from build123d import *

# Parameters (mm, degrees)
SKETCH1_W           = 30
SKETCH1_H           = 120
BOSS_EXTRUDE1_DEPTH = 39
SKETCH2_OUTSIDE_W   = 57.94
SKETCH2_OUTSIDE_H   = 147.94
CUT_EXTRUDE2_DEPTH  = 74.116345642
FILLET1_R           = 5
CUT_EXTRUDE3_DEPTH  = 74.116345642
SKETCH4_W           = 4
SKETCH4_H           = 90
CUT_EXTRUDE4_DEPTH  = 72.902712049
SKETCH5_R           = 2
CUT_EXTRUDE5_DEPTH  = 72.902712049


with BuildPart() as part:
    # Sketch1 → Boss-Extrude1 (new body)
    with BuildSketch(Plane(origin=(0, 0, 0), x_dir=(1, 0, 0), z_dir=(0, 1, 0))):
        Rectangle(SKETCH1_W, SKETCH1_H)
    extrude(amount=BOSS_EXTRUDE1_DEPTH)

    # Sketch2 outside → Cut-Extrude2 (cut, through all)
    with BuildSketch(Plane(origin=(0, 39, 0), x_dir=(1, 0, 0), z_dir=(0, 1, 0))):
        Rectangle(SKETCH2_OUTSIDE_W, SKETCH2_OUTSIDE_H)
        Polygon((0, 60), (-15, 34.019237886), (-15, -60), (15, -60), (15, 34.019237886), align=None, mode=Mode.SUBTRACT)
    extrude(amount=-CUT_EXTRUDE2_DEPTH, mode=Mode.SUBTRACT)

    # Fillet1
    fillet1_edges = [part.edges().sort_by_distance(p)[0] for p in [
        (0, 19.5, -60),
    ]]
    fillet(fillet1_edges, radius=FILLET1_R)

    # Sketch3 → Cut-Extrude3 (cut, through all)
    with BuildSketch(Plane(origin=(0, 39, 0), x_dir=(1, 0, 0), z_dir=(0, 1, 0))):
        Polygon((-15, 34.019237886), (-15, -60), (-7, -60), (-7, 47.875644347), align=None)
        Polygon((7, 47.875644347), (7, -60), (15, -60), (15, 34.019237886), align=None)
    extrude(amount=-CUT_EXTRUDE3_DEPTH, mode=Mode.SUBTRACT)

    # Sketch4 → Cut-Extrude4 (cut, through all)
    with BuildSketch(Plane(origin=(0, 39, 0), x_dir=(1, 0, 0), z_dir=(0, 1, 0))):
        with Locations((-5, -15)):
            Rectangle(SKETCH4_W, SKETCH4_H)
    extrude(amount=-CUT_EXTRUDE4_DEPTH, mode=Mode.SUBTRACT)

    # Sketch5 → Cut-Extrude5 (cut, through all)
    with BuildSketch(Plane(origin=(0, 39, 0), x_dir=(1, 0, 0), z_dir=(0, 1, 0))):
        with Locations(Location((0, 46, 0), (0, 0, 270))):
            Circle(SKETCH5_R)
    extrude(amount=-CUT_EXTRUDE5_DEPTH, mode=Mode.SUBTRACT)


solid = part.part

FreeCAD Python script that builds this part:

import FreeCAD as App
import Part
import Sketcher
Q = App.Units.Quantity


def edges_at(feature, points):
    """Names of the edges that pass closest to the given points."""
    edges = feature.Shape.Edges
    near = lambda p: min(range(len(edges)), key=lambda i: edges[i].distToShape(Part.Vertex(*p))[0])
    return sorted({f"Edge{near(p) + 1}" for p in points})

doc = App.newDocument("Part")
body = doc.addObject("PartDesign::Body", "Body")

# Sketch on XZ plane
sketch1 = doc.addObject("Sketcher::SketchObject", "Sketch")
body.addObject(sketch1)
sketch1.AttachmentSupport = (doc.XZ_Plane, [""])
sketch1.MapMode = "FlatFace"
sketch1.addGeometry([
    Part.LineSegment(App.Vector(-15, -60, 0), App.Vector(-15, 60, 0)),
    Part.LineSegment(App.Vector(-15, 60, 0), App.Vector(15, 60, 0)),
    Part.LineSegment(App.Vector(15, 60, 0), App.Vector(15, -60, 0)),
    Part.LineSegment(App.Vector(15, -60, 0), App.Vector(-15, -60, 0)),
], False)
sketch1.addConstraint([
    Sketcher.Constraint("Coincident", 0, 2, 1, 1),
    Sketcher.Constraint("Coincident", 1, 2, 2, 1),
    Sketcher.Constraint("Coincident", 2, 2, 3, 1),
    Sketcher.Constraint("Coincident", 3, 2, 0, 1),
    Sketcher.Constraint("Vertical", 0),
    Sketcher.Constraint("Horizontal", 1),
    Sketcher.Constraint("Vertical", 2),
    Sketcher.Constraint("Horizontal", 3),
    Sketcher.Constraint("Symmetric", 0, 2, 2, 2, -1, 1),
    Sketcher.Constraint("DistanceX", 1, 1, 1, 2, Q("30 mm")),
    Sketcher.Constraint("DistanceY", 0, 1, 0, 2, Q("120 mm")),
])
pad1 = doc.addObject("PartDesign::Pad", "Pad")
body.addObject(pad1)
pad1.Profile = sketch1
pad1.Length = 39
pad1.Reversed = True

# Sketch on XZ plane
sketch2 = doc.addObject("Sketcher::SketchObject", "Sketch001")
body.addObject(sketch2)
sketch2.AttachmentSupport = (doc.XZ_Plane, [""])
sketch2.MapMode = "FlatFace"
sketch2.AttachmentOffset = App.Placement(App.Vector(0, 0, -39), App.Rotation())
sketch2.addGeometry([
    Part.LineSegment(App.Vector(-29, -74, 0), App.Vector(-29, 74, 0)),  # 0
    Part.LineSegment(App.Vector(-29, 74, 0), App.Vector(29, 74, 0)),  # 1
    Part.LineSegment(App.Vector(29, 74, 0), App.Vector(29, -74, 0)),  # 2
    Part.LineSegment(App.Vector(29, -74, 0), App.Vector(-29, -74, 0)),  # 3
    Part.LineSegment(App.Vector(-15, -34, 0), App.Vector(0, -60, 0)),  # 4
    Part.LineSegment(App.Vector(0, -60, 0), App.Vector(15, -34, 0)),  # 5
    Part.LineSegment(App.Vector(15, -34, 0), App.Vector(15, 60, 0)),  # 6
    Part.LineSegment(App.Vector(15, 60, 0), App.Vector(-15, 60, 0)),  # 7
    Part.LineSegment(App.Vector(-15, 60, 0), App.Vector(-15, -34, 0)),  # 8
], False)
sketch2.addConstraint([
    Sketcher.Constraint("Coincident", 0, 2, 1, 1),
    Sketcher.Constraint("Coincident", 1, 2, 2, 1),
    Sketcher.Constraint("Coincident", 2, 2, 3, 1),
    Sketcher.Constraint("Coincident", 3, 2, 0, 1),
    Sketcher.Constraint("Coincident", 4, 2, 5, 1),
    Sketcher.Constraint("Coincident", 5, 2, 6, 1),
    Sketcher.Constraint("Coincident", 6, 2, 7, 1),
    Sketcher.Constraint("Coincident", 7, 2, 8, 1),
    Sketcher.Constraint("Coincident", 8, 2, 4, 1),
    Sketcher.Constraint("Vertical", 0),
    Sketcher.Constraint("Horizontal", 1),
    Sketcher.Constraint("Vertical", 2),
    Sketcher.Constraint("Horizontal", 3),
    Sketcher.Constraint("Vertical", 6),
    Sketcher.Constraint("Horizontal", 7),
    Sketcher.Constraint("Vertical", 8),
    Sketcher.Constraint("Symmetric", 0, 2, 2, 2, -1, 1),
    Sketcher.Constraint("Symmetric", 5, 2, 8, 2, -2),
    Sketcher.Constraint("PointOnObject", 4, 2, -2),
    Sketcher.Constraint("DistanceX", 7, 2, 7, 1, Q("30 mm")),
    Sketcher.Constraint("Angle", 4, Q("-60 deg")),
    Sketcher.Constraint("DistanceY", 4, 2, -1, 1, Q("60 mm")),
    Sketcher.Constraint("DistanceY", -1, 1, 6, 2, Q("60 mm")),
    Sketcher.Constraint("DistanceX", 1, 1, 1, 2, Q("57.94 mm")),
    Sketcher.Constraint("DistanceY", 0, 1, 0, 2, Q("147.94 mm")),
])
pocket1 = doc.addObject("PartDesign::Pocket", "Pocket")
body.addObject(pocket1)
pocket1.Profile = sketch2
pocket1.Type = "ThroughAll"
pocket1.Reversed = True
doc.recompute()

fillet = doc.addObject("PartDesign::Fillet", "Fillet")
body.addObject(fillet)
fillet.Base = (pocket1, edges_at(pocket1, [(0, 19.5, -60)]))
fillet.Radius = 5

# Sketch on XZ plane
sketch3 = doc.addObject("Sketcher::SketchObject", "Sketch002")
body.addObject(sketch3)
sketch3.AttachmentSupport = (doc.XZ_Plane, [""])
sketch3.MapMode = "FlatFace"
sketch3.AttachmentOffset = App.Placement(App.Vector(0, 0, -39), App.Rotation())
sketch3.addGeometry([
    Part.LineSegment(App.Vector(-15, -34, 0), App.Vector(-15, 60, 0)),  # 0
    Part.LineSegment(App.Vector(-15, 60, 0), App.Vector(-7, 60, 0)),  # 1
    Part.LineSegment(App.Vector(-7, 60, 0), App.Vector(-7, -48, 0)),  # 2
    Part.LineSegment(App.Vector(-7, -48, 0), App.Vector(-15, -34, 0)),  # 3
    Part.LineSegment(App.Vector(7, -48, 0), App.Vector(7, 60, 0)),  # 4
    Part.LineSegment(App.Vector(7, 60, 0), App.Vector(15, 60, 0)),  # 5
    Part.LineSegment(App.Vector(15, 60, 0), App.Vector(15, -34, 0)),  # 6
    Part.LineSegment(App.Vector(15, -34, 0), App.Vector(7, -48, 0)),  # 7
], False)
sketch3.addConstraint([
    Sketcher.Constraint("Coincident", 0, 2, 1, 1),
    Sketcher.Constraint("Coincident", 1, 2, 2, 1),
    Sketcher.Constraint("Coincident", 2, 2, 3, 1),
    Sketcher.Constraint("Coincident", 3, 2, 0, 1),
    Sketcher.Constraint("Coincident", 4, 2, 5, 1),
    Sketcher.Constraint("Coincident", 5, 2, 6, 1),
    Sketcher.Constraint("Coincident", 6, 2, 7, 1),
    Sketcher.Constraint("Coincident", 7, 2, 4, 1),
    Sketcher.Constraint("Vertical", 0),
    Sketcher.Constraint("Horizontal", 1),
    Sketcher.Constraint("Vertical", 2),
    Sketcher.Constraint("Vertical", 4),
    Sketcher.Constraint("Horizontal", 5),
    Sketcher.Constraint("Vertical", 6),
    Sketcher.Constraint("Symmetric", 1, 2, 4, 2, -2),
    Sketcher.Constraint("Symmetric", 3, 2, 6, 2, -2),
    Sketcher.Constraint("Horizontal", 2, 2, 7, 2),
    Sketcher.Constraint("DistanceX", 1, 1, 1, 2, Q("8 mm")),
    Sketcher.Constraint("Angle", 3, Q("120 deg")),
    Sketcher.Constraint("DistanceX", 0, 2, -1, 1, Q("15 mm")),
    Sketcher.Constraint("DistanceY", -1, 1, 0, 2, Q("60 mm")),
    Sketcher.Constraint("DistanceY", 0, 1, 0, 2, Q("94.019238 mm")),
])
pocket2 = doc.addObject("PartDesign::Pocket", "Pocket001")
body.addObject(pocket2)
pocket2.Profile = sketch3
pocket2.Type = "ThroughAll"
pocket2.Reversed = True

# Sketch on XZ plane
sketch4 = doc.addObject("Sketcher::SketchObject", "Sketch003")
body.addObject(sketch4)
sketch4.AttachmentSupport = (doc.XZ_Plane, [""])
sketch4.MapMode = "FlatFace"
sketch4.AttachmentOffset = App.Placement(App.Vector(0, 0, -39), App.Rotation())
sketch4.addGeometry([
    Part.LineSegment(App.Vector(-7, -30, 0), App.Vector(-7, 60, 0)),
    Part.LineSegment(App.Vector(-7, 60, 0), App.Vector(-3, 60, 0)),
    Part.LineSegment(App.Vector(-3, 60, 0), App.Vector(-3, -30, 0)),
    Part.LineSegment(App.Vector(-3, -30, 0), App.Vector(-7, -30, 0)),
], False)
sketch4.addConstraint([
    Sketcher.Constraint("Coincident", 0, 2, 1, 1),
    Sketcher.Constraint("Coincident", 1, 2, 2, 1),
    Sketcher.Constraint("Coincident", 2, 2, 3, 1),
    Sketcher.Constraint("Coincident", 3, 2, 0, 1),
    Sketcher.Constraint("Vertical", 0),
    Sketcher.Constraint("Horizontal", 1),
    Sketcher.Constraint("Vertical", 2),
    Sketcher.Constraint("Horizontal", 3),
    Sketcher.Constraint("DistanceX", 1, 1, 1, 2, Q("4 mm")),
    Sketcher.Constraint("DistanceY", 0, 1, 0, 2, Q("90 mm")),
    Sketcher.Constraint("DistanceX", 0, 2, -1, 1, Q("7 mm")),
    Sketcher.Constraint("DistanceY", -1, 1, 0, 2, Q("60 mm")),
])
pocket3 = doc.addObject("PartDesign::Pocket", "Pocket002")
body.addObject(pocket3)
pocket3.Profile = sketch4
pocket3.Type = "ThroughAll"
pocket3.Reversed = True

# Sketch on XZ plane
sketch5 = doc.addObject("Sketcher::SketchObject", "Sketch004")
body.addObject(sketch5)
sketch5.AttachmentSupport = (doc.XZ_Plane, [""])
sketch5.MapMode = "FlatFace"
sketch5.AttachmentOffset = App.Placement(App.Vector(0, 0, -39), App.Rotation())
sketch5.addGeometry(Part.Circle(App.Vector(0, -46, 0), App.Vector(0, 0, 1), 2), False)
sketch5.addConstraint([
    Sketcher.Constraint("PointOnObject", 0, 3, -2),
    Sketcher.Constraint("Diameter", 0, Q("4 mm")),
    Sketcher.Constraint("DistanceY", 0, 3, -1, 1, Q("46 mm")),
])
pocket4 = doc.addObject("PartDesign::Pocket", "Pocket003")
body.addObject(pocket4)
pocket4.Profile = sketch5
pocket4.Type = "ThroughAll"
pocket4.Reversed = True

doc.recompute()
